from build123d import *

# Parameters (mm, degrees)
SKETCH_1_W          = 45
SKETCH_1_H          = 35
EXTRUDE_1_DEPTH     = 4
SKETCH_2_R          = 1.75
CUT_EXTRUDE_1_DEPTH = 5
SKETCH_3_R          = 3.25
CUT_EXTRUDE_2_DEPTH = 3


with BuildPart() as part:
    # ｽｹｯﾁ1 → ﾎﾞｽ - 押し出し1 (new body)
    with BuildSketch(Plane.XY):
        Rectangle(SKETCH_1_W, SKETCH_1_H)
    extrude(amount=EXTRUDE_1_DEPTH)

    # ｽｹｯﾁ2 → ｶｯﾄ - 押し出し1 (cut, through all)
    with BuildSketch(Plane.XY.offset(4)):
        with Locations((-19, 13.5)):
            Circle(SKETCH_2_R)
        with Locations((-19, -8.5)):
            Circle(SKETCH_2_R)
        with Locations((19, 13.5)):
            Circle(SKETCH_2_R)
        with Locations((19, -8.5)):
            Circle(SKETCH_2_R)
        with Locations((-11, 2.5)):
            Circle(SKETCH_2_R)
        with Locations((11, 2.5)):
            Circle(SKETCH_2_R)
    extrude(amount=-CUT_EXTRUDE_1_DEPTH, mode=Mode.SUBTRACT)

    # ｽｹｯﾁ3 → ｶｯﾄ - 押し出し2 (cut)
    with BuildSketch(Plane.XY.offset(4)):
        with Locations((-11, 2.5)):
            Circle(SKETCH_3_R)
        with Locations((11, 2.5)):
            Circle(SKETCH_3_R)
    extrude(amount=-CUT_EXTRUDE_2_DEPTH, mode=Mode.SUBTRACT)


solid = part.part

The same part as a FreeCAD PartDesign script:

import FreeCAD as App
import Part
import Sketcher

V = App.Vector


def add_polygon(sketch, points):
    """Adds a closed chain of lines whose ends are joined by coincident constraints."""
    first, n = sketch.GeometryCount, len(points)
    for a, b in zip(points, points[1:] + points[:1]):
        sketch.addGeometry(Part.LineSegment(App.Vector(*a, 0), App.Vector(*b, 0)), False)
    for i in range(n):
        sketch.addConstraint(Sketcher.Constraint("Coincident", first + i, 2, first + (i + 1) % n, 1))

doc = App.newDocument("Part")
params = doc.addObject("Spreadsheet::Sheet", "Params")
for row, (alias, value) in enumerate([
    ("sketch1_width", "45 mm"),
    ("sketch1_height", "35 mm"),
    ("pad1_length", "4 mm"),
    ("sketch2_diameter", "3.5 mm"),
    ("sketch3_diameter", "6.5 mm"),
    ("pocket2_length", "3 mm"),
], start=1):
    params.set(f"A{row}", alias)
    params.set(f"B{row}", "=" + value)
    params.setAlias(f"B{row}", alias)

body = doc.addObject("PartDesign::Body", "Body")

sketch1 = doc.addObject("Sketcher::SketchObject", "Sketch")
body.addObject(sketch1)
sketch1.AttachmentSupport = (doc.XY_Plane, [""])
sketch1.MapMode = "FlatFace"
add_polygon(sketch1, [(-22.5, 17.5), (-22.5, -17.5), (22.5, -17.5), (22.5, 17.5)])
sketch1.addConstraint(Sketcher.Constraint("Vertical", 0))
sketch1.addConstraint(Sketcher.Constraint("Horizontal", 1))
sketch1.addConstraint(Sketcher.Constraint("Vertical", 2))
sketch1.addConstraint(Sketcher.Constraint("Horizontal", 3))
sketch1.addConstraint(Sketcher.Constraint("Symmetric", 0, 2, 2, 2, -1, 1))
sketch1.addConstraint(Sketcher.Constraint("DistanceX", 1, 1, 1, 2, 45.0))
sketch1.addConstraint(Sketcher.Constraint("DistanceY", 0, 2, 0, 1, 35.0))
sketch1.setExpression("Constraints[9]", "Params.sketch1_width")
sketch1.setExpression("Constraints[10]", "Params.sketch1_height")
pad1 = doc.addObject("PartDesign::Pad", "Pad")
body.addObject(pad1)
pad1.Profile = sketch1
pad1.setExpression("Length", "Params.pad1_length")

sketch2 = doc.addObject("Sketcher::SketchObject", "Sketch001")
body.addObject(sketch2)
sketch2.AttachmentSupport = (doc.XY_Plane, [""])
sketch2.MapMode = "FlatFace"
sketch2.AttachmentOffset = App.Placement(V(0, 0, 4), App.Rotation())
sketch2.addGeometry(Part.Circle(V(-19, 13.5, 0), V(0, 0, 1), 1.75), False)
sketch2.addGeometry(Part.Circle(V(-19, -8.5, 0), V(0, 0, 1), 1.75), False)
sketch2.addGeometry(Part.Circle(V(19, 13.5, 0), V(0, 0, 1), 1.75), False)
sketch2.addGeometry(Part.Circle(V(19, -8.5, 0), V(0, 0, 1), 1.75), False)
sketch2.addGeometry(Part.Circle(V(-11, 2.5, 0), V(0, 0, 1), 1.75), False)
sketch2.addGeometry(Part.Circle(V(11, 2.5, 0), V(0, 0, 1), 1.75), False)
sketch2.addConstraint(Sketcher.Constraint("Equal", 0, 1))
sketch2.addConstraint(Sketcher.Constraint("Equal", 1, 2))
sketch2.addConstraint(Sketcher.Constraint("Equal", 2, 3))
sketch2.addConstraint(Sketcher.Constraint("Equal", 3, 4))
sketch2.addConstraint(Sketcher.Constraint("Equal", 4, 5))
sketch2.addConstraint(Sketcher.Constraint("Symmetric", 0, 3, 2, 3, -2))
sketch2.addConstraint(Sketcher.Constraint("Symmetric", 1, 3, 3, 3, -2))
sketch2.addConstraint(Sketcher.Constraint("Symmetric", 4, 3, 5, 3, -2))
sketch2.addConstraint(Sketcher.Constraint("Vertical", 0, 3, 1, 3))
sketch2.addConstraint(Sketcher.Constraint("Diameter", 0, 3.5))
sketch2.addConstraint(Sketcher.Constraint("DistanceX", 0, 3, -1, 1, 19.0))
sketch2.addConstraint(Sketcher.Constraint("DistanceX", 4, 3, -1, 1, 11.0))
sketch2.addConstraint(Sketcher.Constraint("DistanceY", 1, 3, 0, 3, 22.0))
sketch2.addConstraint(Sketcher.Constraint("DistanceY", 4, 3, 0, 3, 11.0))
sketch2.addConstraint(Sketcher.Constraint("DistanceY", -1, 1, 0, 3, 13.5))
sketch2.setExpression("Constraints[9]", "Params.sketch2_diameter")
pocket1 = doc.addObject("PartDesign::Pocket", "Pocket")
body.addObject(pocket1)
pocket1.Profile = sketch2
pocket1.Type = "ThroughAll"

sketch3 = doc.addObject("Sketcher::SketchObject", "Sketch002")
body.addObject(sketch3)
sketch3.AttachmentSupport = (doc.XY_Plane, [""])
sketch3.MapMode = "FlatFace"
sketch3.AttachmentOffset = App.Placement(V(0, 0, 4), App.Rotation())
sketch3.addGeometry(Part.Circle(V(-11, 2.5, 0), V(0, 0, 1), 3.25), False)
sketch3.addGeometry(Part.Circle(V(11, 2.5, 0), V(0, 0, 1), 3.25), False)
sketch3.addConstraint(Sketcher.Constraint("Equal", 0, 1))
sketch3.addConstraint(Sketcher.Constraint("Symmetric", 0, 3, 1, 3, -2))
sketch3.addConstraint(Sketcher.Constraint("Diameter", 0, 6.5))
sketch3.addConstraint(Sketcher.Constraint("DistanceX", 0, 3, -1, 1, 11.0))
sketch3.addConstraint(Sketcher.Constraint("DistanceY", -1, 1, 0, 3, 2.5))
sketch3.setExpression("Constraints[2]", "Params.sketch3_diameter")
pocket2 = doc.addObject("PartDesign::Pocket", "Pocket001")
body.addObject(pocket2)
pocket2.Profile = sketch3
pocket2.setExpression("Length", "Params.pocket2_length")

doc.recompute()
